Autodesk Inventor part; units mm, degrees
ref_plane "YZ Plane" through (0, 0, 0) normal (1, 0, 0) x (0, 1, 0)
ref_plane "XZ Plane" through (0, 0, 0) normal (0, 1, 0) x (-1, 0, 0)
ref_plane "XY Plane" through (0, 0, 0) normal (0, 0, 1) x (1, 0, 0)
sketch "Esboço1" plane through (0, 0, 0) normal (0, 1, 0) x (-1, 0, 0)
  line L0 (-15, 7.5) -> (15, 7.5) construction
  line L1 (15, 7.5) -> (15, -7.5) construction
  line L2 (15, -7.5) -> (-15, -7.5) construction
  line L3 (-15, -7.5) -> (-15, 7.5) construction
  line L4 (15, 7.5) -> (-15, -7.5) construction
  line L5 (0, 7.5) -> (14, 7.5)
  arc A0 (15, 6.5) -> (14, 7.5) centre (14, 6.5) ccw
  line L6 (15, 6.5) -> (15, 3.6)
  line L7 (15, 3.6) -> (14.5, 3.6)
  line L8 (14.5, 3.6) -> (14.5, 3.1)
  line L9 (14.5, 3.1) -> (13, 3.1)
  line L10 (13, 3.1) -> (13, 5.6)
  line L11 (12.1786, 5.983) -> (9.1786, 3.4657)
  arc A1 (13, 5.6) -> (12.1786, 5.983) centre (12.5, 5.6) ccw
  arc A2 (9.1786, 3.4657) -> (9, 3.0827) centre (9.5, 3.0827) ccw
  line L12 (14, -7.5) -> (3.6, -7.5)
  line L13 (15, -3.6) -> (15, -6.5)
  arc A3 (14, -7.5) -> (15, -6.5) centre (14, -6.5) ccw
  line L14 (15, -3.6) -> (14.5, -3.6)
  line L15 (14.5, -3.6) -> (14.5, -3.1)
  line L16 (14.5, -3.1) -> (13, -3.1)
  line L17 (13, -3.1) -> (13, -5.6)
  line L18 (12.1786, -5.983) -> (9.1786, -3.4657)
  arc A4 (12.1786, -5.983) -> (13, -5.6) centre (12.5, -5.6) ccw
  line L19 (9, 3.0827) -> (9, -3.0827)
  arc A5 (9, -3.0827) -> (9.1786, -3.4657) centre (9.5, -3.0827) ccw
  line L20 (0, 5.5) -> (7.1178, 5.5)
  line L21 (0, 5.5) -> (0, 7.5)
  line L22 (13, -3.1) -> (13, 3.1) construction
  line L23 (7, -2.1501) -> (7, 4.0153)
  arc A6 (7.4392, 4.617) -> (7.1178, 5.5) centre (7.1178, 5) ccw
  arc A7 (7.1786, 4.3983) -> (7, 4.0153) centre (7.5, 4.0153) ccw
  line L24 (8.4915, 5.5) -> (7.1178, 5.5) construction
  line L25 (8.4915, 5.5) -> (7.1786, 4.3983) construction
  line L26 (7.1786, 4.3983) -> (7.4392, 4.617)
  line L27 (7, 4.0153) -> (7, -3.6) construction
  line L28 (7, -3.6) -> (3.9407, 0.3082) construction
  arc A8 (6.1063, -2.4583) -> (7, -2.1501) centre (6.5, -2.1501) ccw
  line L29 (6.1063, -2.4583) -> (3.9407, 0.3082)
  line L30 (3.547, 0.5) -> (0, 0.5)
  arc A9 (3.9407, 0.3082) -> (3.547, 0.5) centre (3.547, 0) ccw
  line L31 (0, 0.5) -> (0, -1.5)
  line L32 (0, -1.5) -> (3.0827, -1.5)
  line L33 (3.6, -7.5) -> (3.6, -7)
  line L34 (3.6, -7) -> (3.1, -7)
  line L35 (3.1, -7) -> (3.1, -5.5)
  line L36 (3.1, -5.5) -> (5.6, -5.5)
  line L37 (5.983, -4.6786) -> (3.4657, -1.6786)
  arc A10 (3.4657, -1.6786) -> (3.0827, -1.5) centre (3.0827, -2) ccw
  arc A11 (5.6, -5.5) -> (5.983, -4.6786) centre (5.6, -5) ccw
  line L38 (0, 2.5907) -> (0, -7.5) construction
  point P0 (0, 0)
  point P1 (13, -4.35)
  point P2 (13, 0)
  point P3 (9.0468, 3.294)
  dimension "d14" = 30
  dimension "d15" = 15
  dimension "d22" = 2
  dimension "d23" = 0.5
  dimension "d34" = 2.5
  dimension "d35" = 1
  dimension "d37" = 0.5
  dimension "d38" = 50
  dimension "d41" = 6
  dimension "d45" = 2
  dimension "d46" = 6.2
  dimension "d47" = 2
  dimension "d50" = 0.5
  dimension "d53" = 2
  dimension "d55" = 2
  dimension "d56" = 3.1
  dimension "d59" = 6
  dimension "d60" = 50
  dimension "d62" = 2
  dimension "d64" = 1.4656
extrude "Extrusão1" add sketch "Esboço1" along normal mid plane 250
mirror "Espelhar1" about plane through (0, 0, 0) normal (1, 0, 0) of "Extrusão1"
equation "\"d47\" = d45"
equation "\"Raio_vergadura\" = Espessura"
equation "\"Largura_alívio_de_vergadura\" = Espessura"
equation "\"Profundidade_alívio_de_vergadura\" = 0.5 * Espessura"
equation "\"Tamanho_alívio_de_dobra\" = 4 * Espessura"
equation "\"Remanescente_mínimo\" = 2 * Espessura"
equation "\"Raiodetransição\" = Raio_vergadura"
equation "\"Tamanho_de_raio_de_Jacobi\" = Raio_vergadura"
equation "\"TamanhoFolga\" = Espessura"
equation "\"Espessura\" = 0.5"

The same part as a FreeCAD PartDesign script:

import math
import FreeCAD as App
import Part
import Sketcher
Q = App.Units.Quantity

doc = App.newDocument("Part")
body = doc.addObject("PartDesign::Body", "Body")

sketch1 = body.newObject("Sketcher::SketchObject", "Sketch")
sketch1.AttachmentSupport = (doc.getObject("XZ_Plane"), [""])
sketch1.MapMode = "FlatFace"
sketch1.addGeometry([
    Part.LineSegment(App.Vector(-14, 7.5, 0), App.Vector(0, 7.5, 0)),
    Part.LineSegment(App.Vector(0, 7.5, 0), App.Vector(0, 5.5, 0)),
    Part.LineSegment(App.Vector(0, 5.5, 0), App.Vector(-7.1178, 5.5, 0)),
    Part.ArcOfCircle(Part.Circle(App.Vector(-7.1178, 5, 0), App.Vector(0, 0, 1), 0.499987), math.radians(90), math.radians(229.997819)),
    Part.LineSegment(App.Vector(-7.4392, 4.617, 0), App.Vector(-7.1786, 4.3983, 0)),
    Part.ArcOfCircle(Part.Circle(App.Vector(-7.5, 4.0153, 0), App.Vector(0, 0, 1), 0.499987), math.radians(0), math.radians(49.997819)),
    Part.LineSegment(App.Vector(-7, 4.0153, 0), App.Vector(-7, -2.1501, 0)),
    Part.ArcOfCircle(Part.Circle(App.Vector(-6.5, -2.1501, 0), App.Vector(0, 0, 1), 0.499987), math.radians(180), math.radians(321.94511)),
    Part.LineSegment(App.Vector(-6.1063, -2.4583, 0), App.Vector(-3.9407, 0.3082, 0)),
    Part.ArcOfCircle(Part.Circle(App.Vector(-3.547, 0, 0), App.Vector(0, 0, 1), 0.499987), math.radians(90), math.radians(141.94511)),
    Part.LineSegment(App.Vector(-3.547, 0.5, 0), App.Vector(0, 0.5, 0)),
    Part.LineSegment(App.Vector(0, 0.5, 0), App.Vector(0, -1.5, 0)),
    Part.LineSegment(App.Vector(0, -1.5, 0), App.Vector(-3.0827, -1.5, 0)),
    Part.ArcOfCircle(Part.Circle(App.Vector(-3.0827, -2, 0), App.Vector(0, 0, 1), 0.499987), math.radians(90), math.radians(139.997819)),
    Part.LineSegment(App.Vector(-3.4657, -1.6786, 0), App.Vector(-5.983, -4.6786, 0)),
    Part.ArcOfCircle(Part.Circle(App.Vector(-5.6, -5, 0), App.Vector(0, 0, 1), 0.5), math.radians(139.997819), math.radians(270)),
    Part.LineSegment(App.Vector(-5.6, -5.5, 0), App.Vector(-3.1, -5.5, 0)),
    Part.LineSegment(App.Vector(-3.1, -5.5, 0), App.Vector(-3.1, -7, 0)),
    Part.LineSegment(App.Vector(-3.1, -7, 0), App.Vector(-3.6, -7, 0)),
    Part.LineSegment(App.Vector(-3.6, -7, 0), App.Vector(-3.6, -7.5, 0)),
    Part.LineSegment(App.Vector(-3.6, -7.5, 0), App.Vector(-14, -7.5, 0)),
    Part.ArcOfCircle(Part.Circle(App.Vector(-14, -6.5, 0), App.Vector(0, 0, 1), 1), math.radians(180), math.radians(270)),
    Part.LineSegment(App.Vector(-15, -6.5, 0), App.Vector(-15, -3.6, 0)),
    Part.LineSegment(App.Vector(-15, -3.6, 0), App.Vector(-14.5, -3.6, 0)),
    Part.LineSegment(App.Vector(-14.5, -3.6, 0), App.Vector(-14.5, -3.1, 0)),
    Part.LineSegment(App.Vector(-14.5, -3.1, 0), App.Vector(-13, -3.1, 0)),
    Part.LineSegment(App.Vector(-13, -3.1, 0), App.Vector(-13, -5.6, 0)),
    Part.ArcOfCircle(Part.Circle(App.Vector(-12.5, -5.6, 0), App.Vector(0, 0, 1), 0.499987), math.radians(180), math.radians(310.002181)),
    Part.LineSegment(App.Vector(-12.1786, -5.983, 0), App.Vector(-9.1786, -3.4657, 0)),
    Part.ArcOfCircle(Part.Circle(App.Vector(-9.5, -3.0827, 0), App.Vector(0, 0, 1), 0.5), math.radians(-49.997819), math.radians(0)),
    Part.LineSegment(App.Vector(-9, -3.0827, 0), App.Vector(-9, 3.0827, 0)),
    Part.ArcOfCircle(Part.Circle(App.Vector(-9.5, 3.0827, 0), App.Vector(0, 0, 1), 0.499987), math.radians(0), math.radians(49.997819)),
    Part.LineSegment(App.Vector(-9.1786, 3.4657, 0), App.Vector(-12.1786, 5.983, 0)),
    Part.ArcOfCircle(Part.Circle(App.Vector(-12.5, 5.6, 0), App.Vector(0, 0, 1), 0.5), math.radians(49.997819), math.radians(180)),
    Part.LineSegment(App.Vector(-13, 5.6, 0), App.Vector(-13, 3.1, 0)),
    Part.LineSegment(App.Vector(-13, 3.1, 0), App.Vector(-14.5, 3.1, 0)),
    Part.LineSegment(App.Vector(-14.5, 3.1, 0), App.Vector(-14.5, 3.6, 0)),
    Part.LineSegment(App.Vector(-14.5, 3.6, 0), App.Vector(-15, 3.6, 0)),
    Part.LineSegment(App.Vector(-15, 3.6, 0), App.Vector(-15, 6.5, 0)),
    Part.ArcOfCircle(Part.Circle(App.Vector(-14, 6.5, 0), App.Vector(0, 0, 1), 1), math.radians(90), math.radians(180)),
], False)
sketch1.addConstraint([
    Sketcher.Constraint("Coincident", 0, 2, 1, 1),
    Sketcher.Constraint("Coincident", 1, 2, 2, 1),
    Sketcher.Constraint("Tangent", 2, 2, 3, 1),
    Sketcher.Constraint("Tangent", 3, 2, 4, 1),
    Sketcher.Constraint("Tangent", 4, 2, 5, 2),
    Sketcher.Constraint("Tangent", 5, 1, 6, 1),
    Sketcher.Constraint("Tangent", 6, 2, 7, 1),
    Sketcher.Constraint("Tangent", 7, 2, 8, 1),
    Sketcher.Constraint("Tangent", 8, 2, 9, 2),
    Sketcher.Constraint("Tangent", 9, 1, 10, 1),
    Sketcher.Constraint("Coincident", 10, 2, 11, 1),
    Sketcher.Constraint("Coincident", 11, 2, 12, 1),
    Sketcher.Constraint("Tangent", 12, 2, 13, 1),
    Sketcher.Constraint("Tangent", 13, 2, 14, 1),
    Sketcher.Constraint("Tangent", 14, 2, 15, 1),
    Sketcher.Constraint("Tangent", 15, 2, 16, 1),
    Sketcher.Constraint("Coincident", 16, 2, 17, 1),
    Sketcher.Constraint("Coincident", 17, 2, 18, 1),
    Sketcher.Constraint("Coincident", 18, 2, 19, 1),
    Sketcher.Constraint("Coincident", 19, 2, 20, 1),
    Sketcher.Constraint("Tangent", 20, 2, 21, 2),
    Sketcher.Constraint("Tangent", 21, 1, 22, 1),
    Sketcher.Constraint("Coincident", 22, 2, 23, 1),
    Sketcher.Constraint("Coincident", 23, 2, 24, 1),
    Sketcher.Constraint("Coincident", 24, 2, 25, 1),
    Sketcher.Constraint("Coincident", 25, 2, 26, 1),
    Sketcher.Constraint("Tangent", 26, 2, 27, 1),
    Sketcher.Constraint("Tangent", 27, 2, 28, 1),
    Sketcher.Constraint("Tangent", 28, 2, 29, 1),
    Sketcher.Constraint("Tangent", 29, 2, 30, 1),
    Sketcher.Constraint("Tangent", 30, 2, 31, 1),
    Sketcher.Constraint("Tangent", 31, 2, 32, 1),
    Sketcher.Constraint("Tangent", 32, 2, 33, 1),
    Sketcher.Constraint("Tangent", 33, 2, 34, 1),
    Sketcher.Constraint("Coincident", 34, 2, 35, 1),
    Sketcher.Constraint("Coincident", 35, 2, 36, 1),
    Sketcher.Constraint("Coincident", 36, 2, 37, 1),
    Sketcher.Constraint("Coincident", 37, 2, 38, 1),
    Sketcher.Constraint("Tangent", 38, 2, 39, 2),
    Sketcher.Constraint("Tangent", 39, 1, 0, 1),
    Sketcher.Constraint("Horizontal", 0),
    Sketcher.Constraint("Vertical", 1),
    Sketcher.Constraint("Horizontal", 2),
    Sketcher.Constraint("Vertical", 6),
    Sketcher.Constraint("Horizontal", 10),
    Sketcher.Constraint("Vertical", 11),
    Sketcher.Constraint("Horizontal", 12),
    Sketcher.Constraint("Horizontal", 16),
    Sketcher.Constraint("Vertical", 17),
    Sketcher.Constraint("Horizontal", 18),
    Sketcher.Constraint("Vertical", 19),
    Sketcher.Constraint("Horizontal", 20),
    Sketcher.Constraint("Vertical", 22),
    Sketcher.Constraint("Horizontal", 23),
    Sketcher.Constraint("Vertical", 24),
    Sketcher.Constraint("Horizontal", 25),
    Sketcher.Constraint("Vertical", 26),
    Sketcher.Constraint("Vertical", 30),
    Sketcher.Constraint("Vertical", 34),
    Sketcher.Constraint("Horizontal", 35),
    Sketcher.Constraint("Vertical", 36),
    Sketcher.Constraint("Horizontal", 37),
    Sketcher.Constraint("Vertical", 38),
    Sketcher.Constraint("Equal", 3, 5),
    Sketcher.Constraint("Equal", 5, 7),
    Sketcher.Constraint("Equal", 7, 9),
    Sketcher.Constraint("Equal", 9, 13),
    Sketcher.Constraint("Equal", 13, 15),
    Sketcher.Constraint("Equal", 15, 27),
    Sketcher.Constraint("Equal", 27, 29),
    Sketcher.Constraint("Equal", 29, 31),
    Sketcher.Constraint("Equal", 31, 33),
    Sketcher.Constraint("Equal", 21, 39),
    Sketcher.Constraint("Symmetric", 27, 3, 33, 3, -1),
    Sketcher.Constraint("Symmetric", 21, 3, 39, 3, -1),
    Sketcher.Constraint("Symmetric", 24, 2, 35, 2, -1),
    Sketcher.Constraint("PointOnObject", 9, 3, -1),
    Sketcher.Constraint("PointOnObject", 0, 2, -2),
    Sketcher.Constraint("PointOnObject", 10, 2, -2),
    Sketcher.Constraint("Perpendicular", 4, 14),
    Sketcher.Constraint("Perpendicular", 14, 32),
    Sketcher.Constraint("Vertical", 28, 2, 31, 2),
    Sketcher.Constraint("Equal", 18, 23),
    Sketcher.Constraint("Equal", 1, 11),
    Sketcher.Constraint("Equal", 35, 17),
    Sketcher.Constraint("Equal", 37, 19),
    Sketcher.Constraint("Equal", 19, 24),
    Sketcher.Constraint("Equal", 16, 26),
    Sketcher.Constraint("Equal", 6, 30),
    Sketcher.Constraint("Equal", 24, 36),
    Sketcher.Constraint("Equal", 14, 28),
    Sketcher.Constraint("Radius", 21, Q("1 mm")),
    Sketcher.Constraint("Radius", 3, Q("0.5 mm")),
    Sketcher.Constraint("DistanceY", 1, 2, 1, 1, Q("2 mm")),
    Sketcher.Constraint("DistanceX", 16, 1, 16, 2, Q("2.5 mm")),
    Sketcher.Constraint("DistanceX", 18, 2, 18, 1, Q("0.5 mm")),
    Sketcher.Constraint("DistanceX", 21, 1, -1, 1, Q("15 mm")),
    Sketcher.Constraint("DistanceX", 27, 3, 7, 3, Q("6 mm")),
    Sketcher.Constraint("DistanceX", 31, 3, 5, 3, Q("2 mm")),
    Sketcher.Constraint("DistanceY", 17, 2, 15, 3, Q("2 mm")),
    Sketcher.Constraint("DistanceX", 16, 2, -1, 1, Q("3.1 mm")),
    Sketcher.Constraint("DistanceY", 24, 2, -1, 1, Q("3.1 mm")),
    Sketcher.Constraint("Angle", 14, Q("-130 deg")),
    Sketcher.Constraint("DistanceX", 10, 1, 10, 2, Q("3.547 mm")),
    Sketcher.Constraint("DistanceY", 7, 3, -1, 1, Q("2.15 mm")),
])
pad1 = body.newObject("PartDesign::Pad", "Pad")
pad1.Profile = sketch1
pad1.Length = 250
pad1.Midplane = True
doc.recompute()

mirrored = body.newObject("PartDesign::Mirrored", "Mirrored")
mirrored.Originals = [pad1]
mirrored.MirrorPlane = (doc.getObject("YZ_Plane"), [""])
body.Tip = mirrored

doc.recompute()
